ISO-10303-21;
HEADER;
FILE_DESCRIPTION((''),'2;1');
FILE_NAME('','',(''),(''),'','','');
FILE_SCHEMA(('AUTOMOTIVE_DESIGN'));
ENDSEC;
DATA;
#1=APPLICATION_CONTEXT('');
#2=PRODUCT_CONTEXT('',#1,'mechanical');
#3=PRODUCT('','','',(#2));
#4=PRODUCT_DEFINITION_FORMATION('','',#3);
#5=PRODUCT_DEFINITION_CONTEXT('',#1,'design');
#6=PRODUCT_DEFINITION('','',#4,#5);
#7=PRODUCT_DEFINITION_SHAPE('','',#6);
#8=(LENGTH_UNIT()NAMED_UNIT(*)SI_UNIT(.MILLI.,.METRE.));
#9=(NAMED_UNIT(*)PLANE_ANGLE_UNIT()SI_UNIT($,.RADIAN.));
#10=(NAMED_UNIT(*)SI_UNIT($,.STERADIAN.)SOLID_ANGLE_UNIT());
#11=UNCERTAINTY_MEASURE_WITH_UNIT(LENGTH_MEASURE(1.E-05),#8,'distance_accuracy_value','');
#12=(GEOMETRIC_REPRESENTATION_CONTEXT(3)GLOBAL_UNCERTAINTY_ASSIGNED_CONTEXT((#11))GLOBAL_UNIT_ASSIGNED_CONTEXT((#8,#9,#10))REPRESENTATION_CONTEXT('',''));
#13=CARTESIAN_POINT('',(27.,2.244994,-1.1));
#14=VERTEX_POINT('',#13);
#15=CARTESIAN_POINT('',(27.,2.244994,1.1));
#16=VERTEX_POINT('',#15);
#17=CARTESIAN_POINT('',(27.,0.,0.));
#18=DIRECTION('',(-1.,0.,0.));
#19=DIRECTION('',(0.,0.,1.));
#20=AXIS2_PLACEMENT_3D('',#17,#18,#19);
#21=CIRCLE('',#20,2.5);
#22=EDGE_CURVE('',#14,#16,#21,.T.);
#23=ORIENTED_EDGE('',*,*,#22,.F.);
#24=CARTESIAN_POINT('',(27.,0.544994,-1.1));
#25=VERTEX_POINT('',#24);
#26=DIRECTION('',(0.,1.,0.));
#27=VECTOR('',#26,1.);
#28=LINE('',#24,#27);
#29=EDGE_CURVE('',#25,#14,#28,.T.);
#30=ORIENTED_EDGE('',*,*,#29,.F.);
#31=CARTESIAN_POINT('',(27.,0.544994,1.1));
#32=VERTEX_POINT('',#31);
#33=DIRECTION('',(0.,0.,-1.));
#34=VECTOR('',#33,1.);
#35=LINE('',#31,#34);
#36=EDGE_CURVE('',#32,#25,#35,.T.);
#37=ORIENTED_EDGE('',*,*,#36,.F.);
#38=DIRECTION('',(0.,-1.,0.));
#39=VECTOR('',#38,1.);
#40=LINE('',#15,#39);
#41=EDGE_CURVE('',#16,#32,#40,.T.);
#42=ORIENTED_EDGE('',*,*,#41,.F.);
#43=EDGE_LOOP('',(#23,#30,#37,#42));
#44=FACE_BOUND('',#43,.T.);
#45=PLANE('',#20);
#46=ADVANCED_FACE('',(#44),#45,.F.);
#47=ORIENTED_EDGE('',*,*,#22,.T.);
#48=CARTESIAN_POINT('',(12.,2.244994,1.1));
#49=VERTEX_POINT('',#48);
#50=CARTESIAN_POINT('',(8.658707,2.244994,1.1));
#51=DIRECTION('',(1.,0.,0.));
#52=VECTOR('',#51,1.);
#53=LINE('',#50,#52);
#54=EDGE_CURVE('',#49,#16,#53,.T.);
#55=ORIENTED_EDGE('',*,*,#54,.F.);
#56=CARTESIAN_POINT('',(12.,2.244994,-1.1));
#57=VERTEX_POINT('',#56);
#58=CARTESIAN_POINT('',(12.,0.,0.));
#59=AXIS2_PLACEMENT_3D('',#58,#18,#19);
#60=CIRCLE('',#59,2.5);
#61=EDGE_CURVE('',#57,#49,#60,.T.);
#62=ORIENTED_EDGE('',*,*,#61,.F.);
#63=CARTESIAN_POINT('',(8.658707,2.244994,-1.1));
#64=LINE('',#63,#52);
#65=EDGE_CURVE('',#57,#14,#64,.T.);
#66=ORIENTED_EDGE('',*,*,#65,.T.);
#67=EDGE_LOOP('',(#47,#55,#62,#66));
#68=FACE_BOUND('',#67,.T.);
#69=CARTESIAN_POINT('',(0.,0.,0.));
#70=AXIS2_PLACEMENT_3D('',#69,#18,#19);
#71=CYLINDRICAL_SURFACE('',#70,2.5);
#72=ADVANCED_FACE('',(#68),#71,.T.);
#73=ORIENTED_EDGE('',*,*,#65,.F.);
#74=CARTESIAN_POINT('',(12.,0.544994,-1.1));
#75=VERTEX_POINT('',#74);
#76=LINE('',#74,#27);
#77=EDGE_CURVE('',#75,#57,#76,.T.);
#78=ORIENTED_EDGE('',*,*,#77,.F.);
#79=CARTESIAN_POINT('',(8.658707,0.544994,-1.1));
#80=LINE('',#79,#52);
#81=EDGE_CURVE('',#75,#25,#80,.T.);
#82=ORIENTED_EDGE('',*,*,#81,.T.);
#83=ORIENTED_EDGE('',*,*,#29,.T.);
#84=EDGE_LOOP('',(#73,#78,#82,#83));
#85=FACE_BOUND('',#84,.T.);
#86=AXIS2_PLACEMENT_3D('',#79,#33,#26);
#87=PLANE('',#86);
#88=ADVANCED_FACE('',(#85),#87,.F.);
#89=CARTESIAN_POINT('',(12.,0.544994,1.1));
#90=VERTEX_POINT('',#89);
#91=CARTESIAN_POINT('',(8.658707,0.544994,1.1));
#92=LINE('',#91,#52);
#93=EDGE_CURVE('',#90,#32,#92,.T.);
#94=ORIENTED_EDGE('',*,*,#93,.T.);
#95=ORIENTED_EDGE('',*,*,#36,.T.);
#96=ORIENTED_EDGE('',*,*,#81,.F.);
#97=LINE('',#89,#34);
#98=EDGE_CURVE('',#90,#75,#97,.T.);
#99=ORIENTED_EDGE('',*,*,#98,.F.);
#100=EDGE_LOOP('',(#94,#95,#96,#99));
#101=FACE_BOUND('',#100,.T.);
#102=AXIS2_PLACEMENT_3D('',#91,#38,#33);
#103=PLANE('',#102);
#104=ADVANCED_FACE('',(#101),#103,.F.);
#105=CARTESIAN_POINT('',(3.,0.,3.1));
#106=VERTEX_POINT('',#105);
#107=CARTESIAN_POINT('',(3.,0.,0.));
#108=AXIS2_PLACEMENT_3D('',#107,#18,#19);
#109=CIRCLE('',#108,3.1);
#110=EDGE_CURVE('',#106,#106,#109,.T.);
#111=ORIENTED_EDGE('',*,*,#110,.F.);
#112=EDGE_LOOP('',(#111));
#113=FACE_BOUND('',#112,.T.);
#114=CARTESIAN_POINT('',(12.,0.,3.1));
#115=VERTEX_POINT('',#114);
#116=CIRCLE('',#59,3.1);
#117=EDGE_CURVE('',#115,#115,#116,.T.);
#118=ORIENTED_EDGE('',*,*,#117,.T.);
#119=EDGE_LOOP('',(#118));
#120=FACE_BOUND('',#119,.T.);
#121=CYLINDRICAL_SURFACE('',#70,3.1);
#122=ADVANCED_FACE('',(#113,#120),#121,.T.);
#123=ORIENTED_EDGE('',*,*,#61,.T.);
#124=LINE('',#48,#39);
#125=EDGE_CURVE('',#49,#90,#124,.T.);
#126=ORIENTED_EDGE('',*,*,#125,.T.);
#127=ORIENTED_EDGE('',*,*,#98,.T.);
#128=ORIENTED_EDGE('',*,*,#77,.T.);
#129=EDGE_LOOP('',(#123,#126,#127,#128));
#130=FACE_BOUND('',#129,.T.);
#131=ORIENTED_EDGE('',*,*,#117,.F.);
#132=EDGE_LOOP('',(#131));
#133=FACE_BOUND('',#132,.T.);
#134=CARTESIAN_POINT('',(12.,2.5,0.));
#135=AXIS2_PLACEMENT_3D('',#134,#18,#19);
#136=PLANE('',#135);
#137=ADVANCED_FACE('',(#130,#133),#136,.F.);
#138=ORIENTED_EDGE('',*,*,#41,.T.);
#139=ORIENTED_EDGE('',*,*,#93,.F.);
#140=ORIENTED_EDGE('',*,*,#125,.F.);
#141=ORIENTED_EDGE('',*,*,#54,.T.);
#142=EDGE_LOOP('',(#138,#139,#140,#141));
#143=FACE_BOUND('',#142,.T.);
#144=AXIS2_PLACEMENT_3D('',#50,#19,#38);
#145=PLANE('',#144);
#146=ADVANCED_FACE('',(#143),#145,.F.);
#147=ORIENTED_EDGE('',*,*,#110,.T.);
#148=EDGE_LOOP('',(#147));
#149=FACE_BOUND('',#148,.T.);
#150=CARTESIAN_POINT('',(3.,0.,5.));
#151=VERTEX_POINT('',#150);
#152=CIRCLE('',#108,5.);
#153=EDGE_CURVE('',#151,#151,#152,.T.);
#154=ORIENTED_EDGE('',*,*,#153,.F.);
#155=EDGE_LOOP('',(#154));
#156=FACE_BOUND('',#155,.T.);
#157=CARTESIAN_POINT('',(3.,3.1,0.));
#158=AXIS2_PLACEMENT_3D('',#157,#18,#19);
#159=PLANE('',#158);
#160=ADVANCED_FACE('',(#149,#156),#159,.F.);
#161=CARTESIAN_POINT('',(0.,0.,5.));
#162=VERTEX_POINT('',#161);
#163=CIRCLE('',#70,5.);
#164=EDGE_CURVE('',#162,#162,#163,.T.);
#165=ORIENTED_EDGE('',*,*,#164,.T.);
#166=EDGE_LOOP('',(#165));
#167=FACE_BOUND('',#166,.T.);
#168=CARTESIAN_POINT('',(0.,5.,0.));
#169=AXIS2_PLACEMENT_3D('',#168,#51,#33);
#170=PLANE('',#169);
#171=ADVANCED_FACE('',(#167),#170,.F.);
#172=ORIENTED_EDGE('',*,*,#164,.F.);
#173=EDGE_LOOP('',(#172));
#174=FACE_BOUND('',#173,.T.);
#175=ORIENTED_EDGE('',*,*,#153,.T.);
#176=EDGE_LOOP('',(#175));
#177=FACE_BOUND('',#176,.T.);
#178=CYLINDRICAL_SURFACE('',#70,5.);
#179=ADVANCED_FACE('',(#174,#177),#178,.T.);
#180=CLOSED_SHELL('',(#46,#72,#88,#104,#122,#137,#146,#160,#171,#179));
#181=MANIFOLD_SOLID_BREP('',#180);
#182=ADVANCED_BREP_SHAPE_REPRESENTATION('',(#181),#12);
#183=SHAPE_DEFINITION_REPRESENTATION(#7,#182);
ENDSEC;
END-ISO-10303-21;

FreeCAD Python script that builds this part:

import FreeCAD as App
import Part
import Sketcher
from FreeCAD import Vector
Q = App.Units.Quantity

doc = App.newDocument("Part")
params = doc.addObject("Spreadsheet::Sheet", "Params")
for row, (alias, value) in enumerate([
    ("sketch1_width", "27 mm"),
    ("sketch1_width2", "15 mm"),
    ("sketch1_width3", "9 mm"),
    ("sketch1_height", "5 mm"),
    ("sketch1_height2", "2.5 mm"),
    ("revolution_angle", "360 deg"),
    ("sketch2_width", "1.7 mm"),
    ("sketch2_height", "2.2 mm"),
    ("pocket1_length", "15 mm"),
], start=1):
    params.set(f"A{row}", alias)
    params.set(f"B{row}", "=" + value)
    params.setAlias(f"B{row}", alias)

body = doc.addObject("PartDesign::Body", "Body")

# Sketch on XY plane
sketch1 = body.newObject("Sketcher::SketchObject", "Sketch")
sketch1.AttachmentSupport = (doc.getObject("XY_Plane"), [""])
sketch1.MapMode = "FlatFace"
sketch1.addGeometry(Part.LineSegment(Vector(0, 0, 0), Vector(27, 0, 0)), False)
sketch1.addGeometry(Part.LineSegment(Vector(27, 0, 0), Vector(27, 2.5, 0)), False)
sketch1.addGeometry(Part.LineSegment(Vector(27, 2.5, 0), Vector(12, 2.5, 0)), False)
sketch1.addGeometry(Part.LineSegment(Vector(12, 2.5, 0), Vector(12, 3.1, 0)), False)
sketch1.addGeometry(Part.LineSegment(Vector(12, 3.1, 0), Vector(3, 3.1, 0)), False)
sketch1.addGeometry(Part.LineSegment(Vector(3, 3.1, 0), Vector(3, 5, 0)), False)
sketch1.addGeometry(Part.LineSegment(Vector(3, 5, 0), Vector(0, 5, 0)), False)
sketch1.addGeometry(Part.LineSegment(Vector(0, 5, 0), Vector(0, 0, 0)), False)
sketch1.addConstraint(Sketcher.Constraint("Coincident", 0, 2, 1, 1))
sketch1.addConstraint(Sketcher.Constraint("Coincident", 1, 2, 2, 1))
sketch1.addConstraint(Sketcher.Constraint("Coincident", 2, 2, 3, 1))
sketch1.addConstraint(Sketcher.Constraint("Coincident", 3, 2, 4, 1))
sketch1.addConstraint(Sketcher.Constraint("Coincident", 4, 2, 5, 1))
sketch1.addConstraint(Sketcher.Constraint("Coincident", 5, 2, 6, 1))
sketch1.addConstraint(Sketcher.Constraint("Coincident", 6, 2, 7, 1))
sketch1.addConstraint(Sketcher.Constraint("Coincident", 7, 2, 0, 1))
sketch1.addConstraint(Sketcher.Constraint("Horizontal", 0))
sketch1.addConstraint(Sketcher.Constraint("Vertical", 1))
sketch1.addConstraint(Sketcher.Constraint("Horizontal", 2))
sketch1.addConstraint(Sketcher.Constraint("Vertical", 3))
sketch1.addConstraint(Sketcher.Constraint("Horizontal", 4))
sketch1.addConstraint(Sketcher.Constraint("Vertical", 5))
sketch1.addConstraint(Sketcher.Constraint("Horizontal", 6))
sketch1.addConstraint(Sketcher.Constraint("Vertical", 7))
sketch1.addConstraint(Sketcher.Constraint("Coincident", 7, 2, -1, 1))
sketch1.addConstraint(Sketcher.Constraint("DistanceX", 0, 1, 0, 2, Q("27 mm")))
sketch1.addConstraint(Sketcher.Constraint("DistanceX", 2, 2, 2, 1, Q("15 mm")))
sketch1.addConstraint(Sketcher.Constraint("DistanceX", 4, 2, 4, 1, Q("9 mm")))
sketch1.addConstraint(Sketcher.Constraint("DistanceY", 7, 2, 7, 1, Q("5 mm")))
sketch1.addConstraint(Sketcher.Constraint("DistanceY", 1, 1, 1, 2, Q("2.5 mm")))
sketch1.addConstraint(Sketcher.Constraint("DistanceY", 3, 1, 3, 2, Q("0.6 mm")))
sketch1.setExpression("Constraints[17]", "Params.sketch1_width")
sketch1.setExpression("Constraints[18]", "Params.sketch1_width2")
sketch1.setExpression("Constraints[19]", "Params.sketch1_width3")
sketch1.setExpression("Constraints[20]", "Params.sketch1_height")
sketch1.setExpression("Constraints[21]", "Params.sketch1_height2")
revolution = body.newObject("PartDesign::Revolution", "Revolution")
revolution.Profile = sketch1
revolution.ReferenceAxis = (sketch1, ["H_Axis"])
revolution.setExpression("Angle", "Params.revolution_angle")

# Sketch on YZ plane
sketch2 = body.newObject("Sketcher::SketchObject", "Sketch001")
sketch2.AttachmentSupport = (doc.getObject("YZ_Plane"), [""])
sketch2.MapMode = "FlatFace"
sketch2.AttachmentOffset = App.Placement(Vector(0, 0, 27), App.Rotation())
sketch2.addGeometry(Part.LineSegment(Vector(2.244994, 1.1, 0), Vector(0.544994, 1.1, 0)), False)
sketch2.addGeometry(Part.LineSegment(Vector(0.544994, 1.1, 0), Vector(0.544994, -1.1, 0)), False)
sketch2.addGeometry(Part.LineSegment(Vector(0.544994, -1.1, 0), Vector(2.244994, -1.1, 0)), False)
sketch2.addGeometry(Part.LineSegment(Vector(2.244994, -1.1, 0), Vector(3.059798, 0, 0)), False)
sketch2.addGeometry(Part.LineSegment(Vector(3.059798, 0, 0), Vector(2.244994, 1.1, 0)), False)
sketch2.addConstraint(Sketcher.Constraint("Coincident", 0, 2, 1, 1))
sketch2.addConstraint(Sketcher.Constraint("Coincident", 1, 2, 2, 1))
sketch2.addConstraint(Sketcher.Constraint("Coincident", 2, 2, 3, 1))
sketch2.addConstraint(Sketcher.Constraint("Coincident", 3, 2, 4, 1))
sketch2.addConstraint(Sketcher.Constraint("Coincident", 4, 2, 0, 1))
sketch2.addConstraint(Sketcher.Constraint("Horizontal", 0))
sketch2.addConstraint(Sketcher.Constraint("Vertical", 1))
sketch2.addConstraint(Sketcher.Constraint("Horizontal", 2))
sketch2.addConstraint(Sketcher.Constraint("Symmetric", 2, 2, 4, 2, -1))
sketch2.addConstraint(Sketcher.Constraint("PointOnObject", 3, 2, -1))
sketch2.addConstraint(Sketcher.Constraint("DistanceX", 0, 2, 0, 1, Q("1.7 mm")))
sketch2.addConstraint(Sketcher.Constraint("DistanceY", 1, 2, 1, 1, Q("2.2 mm")))
sketch2.addConstraint(Sketcher.Constraint("DistanceX", -1, 1, 3, 2, Q("3.059798 mm")))
sketch2.addConstraint(Sketcher.Constraint("Distance", 3, Q("1.368907 mm")))
sketch2.setExpression("Constraints[10]", "Params.sketch2_width")
sketch2.setExpression("Constraints[11]", "Params.sketch2_height")
pocket1 = body.newObject("PartDesign::Pocket", "Pocket")
pocket1.Profile = sketch2
pocket1.setExpression("Length", "Params.pocket1_length")

doc.recompute()
